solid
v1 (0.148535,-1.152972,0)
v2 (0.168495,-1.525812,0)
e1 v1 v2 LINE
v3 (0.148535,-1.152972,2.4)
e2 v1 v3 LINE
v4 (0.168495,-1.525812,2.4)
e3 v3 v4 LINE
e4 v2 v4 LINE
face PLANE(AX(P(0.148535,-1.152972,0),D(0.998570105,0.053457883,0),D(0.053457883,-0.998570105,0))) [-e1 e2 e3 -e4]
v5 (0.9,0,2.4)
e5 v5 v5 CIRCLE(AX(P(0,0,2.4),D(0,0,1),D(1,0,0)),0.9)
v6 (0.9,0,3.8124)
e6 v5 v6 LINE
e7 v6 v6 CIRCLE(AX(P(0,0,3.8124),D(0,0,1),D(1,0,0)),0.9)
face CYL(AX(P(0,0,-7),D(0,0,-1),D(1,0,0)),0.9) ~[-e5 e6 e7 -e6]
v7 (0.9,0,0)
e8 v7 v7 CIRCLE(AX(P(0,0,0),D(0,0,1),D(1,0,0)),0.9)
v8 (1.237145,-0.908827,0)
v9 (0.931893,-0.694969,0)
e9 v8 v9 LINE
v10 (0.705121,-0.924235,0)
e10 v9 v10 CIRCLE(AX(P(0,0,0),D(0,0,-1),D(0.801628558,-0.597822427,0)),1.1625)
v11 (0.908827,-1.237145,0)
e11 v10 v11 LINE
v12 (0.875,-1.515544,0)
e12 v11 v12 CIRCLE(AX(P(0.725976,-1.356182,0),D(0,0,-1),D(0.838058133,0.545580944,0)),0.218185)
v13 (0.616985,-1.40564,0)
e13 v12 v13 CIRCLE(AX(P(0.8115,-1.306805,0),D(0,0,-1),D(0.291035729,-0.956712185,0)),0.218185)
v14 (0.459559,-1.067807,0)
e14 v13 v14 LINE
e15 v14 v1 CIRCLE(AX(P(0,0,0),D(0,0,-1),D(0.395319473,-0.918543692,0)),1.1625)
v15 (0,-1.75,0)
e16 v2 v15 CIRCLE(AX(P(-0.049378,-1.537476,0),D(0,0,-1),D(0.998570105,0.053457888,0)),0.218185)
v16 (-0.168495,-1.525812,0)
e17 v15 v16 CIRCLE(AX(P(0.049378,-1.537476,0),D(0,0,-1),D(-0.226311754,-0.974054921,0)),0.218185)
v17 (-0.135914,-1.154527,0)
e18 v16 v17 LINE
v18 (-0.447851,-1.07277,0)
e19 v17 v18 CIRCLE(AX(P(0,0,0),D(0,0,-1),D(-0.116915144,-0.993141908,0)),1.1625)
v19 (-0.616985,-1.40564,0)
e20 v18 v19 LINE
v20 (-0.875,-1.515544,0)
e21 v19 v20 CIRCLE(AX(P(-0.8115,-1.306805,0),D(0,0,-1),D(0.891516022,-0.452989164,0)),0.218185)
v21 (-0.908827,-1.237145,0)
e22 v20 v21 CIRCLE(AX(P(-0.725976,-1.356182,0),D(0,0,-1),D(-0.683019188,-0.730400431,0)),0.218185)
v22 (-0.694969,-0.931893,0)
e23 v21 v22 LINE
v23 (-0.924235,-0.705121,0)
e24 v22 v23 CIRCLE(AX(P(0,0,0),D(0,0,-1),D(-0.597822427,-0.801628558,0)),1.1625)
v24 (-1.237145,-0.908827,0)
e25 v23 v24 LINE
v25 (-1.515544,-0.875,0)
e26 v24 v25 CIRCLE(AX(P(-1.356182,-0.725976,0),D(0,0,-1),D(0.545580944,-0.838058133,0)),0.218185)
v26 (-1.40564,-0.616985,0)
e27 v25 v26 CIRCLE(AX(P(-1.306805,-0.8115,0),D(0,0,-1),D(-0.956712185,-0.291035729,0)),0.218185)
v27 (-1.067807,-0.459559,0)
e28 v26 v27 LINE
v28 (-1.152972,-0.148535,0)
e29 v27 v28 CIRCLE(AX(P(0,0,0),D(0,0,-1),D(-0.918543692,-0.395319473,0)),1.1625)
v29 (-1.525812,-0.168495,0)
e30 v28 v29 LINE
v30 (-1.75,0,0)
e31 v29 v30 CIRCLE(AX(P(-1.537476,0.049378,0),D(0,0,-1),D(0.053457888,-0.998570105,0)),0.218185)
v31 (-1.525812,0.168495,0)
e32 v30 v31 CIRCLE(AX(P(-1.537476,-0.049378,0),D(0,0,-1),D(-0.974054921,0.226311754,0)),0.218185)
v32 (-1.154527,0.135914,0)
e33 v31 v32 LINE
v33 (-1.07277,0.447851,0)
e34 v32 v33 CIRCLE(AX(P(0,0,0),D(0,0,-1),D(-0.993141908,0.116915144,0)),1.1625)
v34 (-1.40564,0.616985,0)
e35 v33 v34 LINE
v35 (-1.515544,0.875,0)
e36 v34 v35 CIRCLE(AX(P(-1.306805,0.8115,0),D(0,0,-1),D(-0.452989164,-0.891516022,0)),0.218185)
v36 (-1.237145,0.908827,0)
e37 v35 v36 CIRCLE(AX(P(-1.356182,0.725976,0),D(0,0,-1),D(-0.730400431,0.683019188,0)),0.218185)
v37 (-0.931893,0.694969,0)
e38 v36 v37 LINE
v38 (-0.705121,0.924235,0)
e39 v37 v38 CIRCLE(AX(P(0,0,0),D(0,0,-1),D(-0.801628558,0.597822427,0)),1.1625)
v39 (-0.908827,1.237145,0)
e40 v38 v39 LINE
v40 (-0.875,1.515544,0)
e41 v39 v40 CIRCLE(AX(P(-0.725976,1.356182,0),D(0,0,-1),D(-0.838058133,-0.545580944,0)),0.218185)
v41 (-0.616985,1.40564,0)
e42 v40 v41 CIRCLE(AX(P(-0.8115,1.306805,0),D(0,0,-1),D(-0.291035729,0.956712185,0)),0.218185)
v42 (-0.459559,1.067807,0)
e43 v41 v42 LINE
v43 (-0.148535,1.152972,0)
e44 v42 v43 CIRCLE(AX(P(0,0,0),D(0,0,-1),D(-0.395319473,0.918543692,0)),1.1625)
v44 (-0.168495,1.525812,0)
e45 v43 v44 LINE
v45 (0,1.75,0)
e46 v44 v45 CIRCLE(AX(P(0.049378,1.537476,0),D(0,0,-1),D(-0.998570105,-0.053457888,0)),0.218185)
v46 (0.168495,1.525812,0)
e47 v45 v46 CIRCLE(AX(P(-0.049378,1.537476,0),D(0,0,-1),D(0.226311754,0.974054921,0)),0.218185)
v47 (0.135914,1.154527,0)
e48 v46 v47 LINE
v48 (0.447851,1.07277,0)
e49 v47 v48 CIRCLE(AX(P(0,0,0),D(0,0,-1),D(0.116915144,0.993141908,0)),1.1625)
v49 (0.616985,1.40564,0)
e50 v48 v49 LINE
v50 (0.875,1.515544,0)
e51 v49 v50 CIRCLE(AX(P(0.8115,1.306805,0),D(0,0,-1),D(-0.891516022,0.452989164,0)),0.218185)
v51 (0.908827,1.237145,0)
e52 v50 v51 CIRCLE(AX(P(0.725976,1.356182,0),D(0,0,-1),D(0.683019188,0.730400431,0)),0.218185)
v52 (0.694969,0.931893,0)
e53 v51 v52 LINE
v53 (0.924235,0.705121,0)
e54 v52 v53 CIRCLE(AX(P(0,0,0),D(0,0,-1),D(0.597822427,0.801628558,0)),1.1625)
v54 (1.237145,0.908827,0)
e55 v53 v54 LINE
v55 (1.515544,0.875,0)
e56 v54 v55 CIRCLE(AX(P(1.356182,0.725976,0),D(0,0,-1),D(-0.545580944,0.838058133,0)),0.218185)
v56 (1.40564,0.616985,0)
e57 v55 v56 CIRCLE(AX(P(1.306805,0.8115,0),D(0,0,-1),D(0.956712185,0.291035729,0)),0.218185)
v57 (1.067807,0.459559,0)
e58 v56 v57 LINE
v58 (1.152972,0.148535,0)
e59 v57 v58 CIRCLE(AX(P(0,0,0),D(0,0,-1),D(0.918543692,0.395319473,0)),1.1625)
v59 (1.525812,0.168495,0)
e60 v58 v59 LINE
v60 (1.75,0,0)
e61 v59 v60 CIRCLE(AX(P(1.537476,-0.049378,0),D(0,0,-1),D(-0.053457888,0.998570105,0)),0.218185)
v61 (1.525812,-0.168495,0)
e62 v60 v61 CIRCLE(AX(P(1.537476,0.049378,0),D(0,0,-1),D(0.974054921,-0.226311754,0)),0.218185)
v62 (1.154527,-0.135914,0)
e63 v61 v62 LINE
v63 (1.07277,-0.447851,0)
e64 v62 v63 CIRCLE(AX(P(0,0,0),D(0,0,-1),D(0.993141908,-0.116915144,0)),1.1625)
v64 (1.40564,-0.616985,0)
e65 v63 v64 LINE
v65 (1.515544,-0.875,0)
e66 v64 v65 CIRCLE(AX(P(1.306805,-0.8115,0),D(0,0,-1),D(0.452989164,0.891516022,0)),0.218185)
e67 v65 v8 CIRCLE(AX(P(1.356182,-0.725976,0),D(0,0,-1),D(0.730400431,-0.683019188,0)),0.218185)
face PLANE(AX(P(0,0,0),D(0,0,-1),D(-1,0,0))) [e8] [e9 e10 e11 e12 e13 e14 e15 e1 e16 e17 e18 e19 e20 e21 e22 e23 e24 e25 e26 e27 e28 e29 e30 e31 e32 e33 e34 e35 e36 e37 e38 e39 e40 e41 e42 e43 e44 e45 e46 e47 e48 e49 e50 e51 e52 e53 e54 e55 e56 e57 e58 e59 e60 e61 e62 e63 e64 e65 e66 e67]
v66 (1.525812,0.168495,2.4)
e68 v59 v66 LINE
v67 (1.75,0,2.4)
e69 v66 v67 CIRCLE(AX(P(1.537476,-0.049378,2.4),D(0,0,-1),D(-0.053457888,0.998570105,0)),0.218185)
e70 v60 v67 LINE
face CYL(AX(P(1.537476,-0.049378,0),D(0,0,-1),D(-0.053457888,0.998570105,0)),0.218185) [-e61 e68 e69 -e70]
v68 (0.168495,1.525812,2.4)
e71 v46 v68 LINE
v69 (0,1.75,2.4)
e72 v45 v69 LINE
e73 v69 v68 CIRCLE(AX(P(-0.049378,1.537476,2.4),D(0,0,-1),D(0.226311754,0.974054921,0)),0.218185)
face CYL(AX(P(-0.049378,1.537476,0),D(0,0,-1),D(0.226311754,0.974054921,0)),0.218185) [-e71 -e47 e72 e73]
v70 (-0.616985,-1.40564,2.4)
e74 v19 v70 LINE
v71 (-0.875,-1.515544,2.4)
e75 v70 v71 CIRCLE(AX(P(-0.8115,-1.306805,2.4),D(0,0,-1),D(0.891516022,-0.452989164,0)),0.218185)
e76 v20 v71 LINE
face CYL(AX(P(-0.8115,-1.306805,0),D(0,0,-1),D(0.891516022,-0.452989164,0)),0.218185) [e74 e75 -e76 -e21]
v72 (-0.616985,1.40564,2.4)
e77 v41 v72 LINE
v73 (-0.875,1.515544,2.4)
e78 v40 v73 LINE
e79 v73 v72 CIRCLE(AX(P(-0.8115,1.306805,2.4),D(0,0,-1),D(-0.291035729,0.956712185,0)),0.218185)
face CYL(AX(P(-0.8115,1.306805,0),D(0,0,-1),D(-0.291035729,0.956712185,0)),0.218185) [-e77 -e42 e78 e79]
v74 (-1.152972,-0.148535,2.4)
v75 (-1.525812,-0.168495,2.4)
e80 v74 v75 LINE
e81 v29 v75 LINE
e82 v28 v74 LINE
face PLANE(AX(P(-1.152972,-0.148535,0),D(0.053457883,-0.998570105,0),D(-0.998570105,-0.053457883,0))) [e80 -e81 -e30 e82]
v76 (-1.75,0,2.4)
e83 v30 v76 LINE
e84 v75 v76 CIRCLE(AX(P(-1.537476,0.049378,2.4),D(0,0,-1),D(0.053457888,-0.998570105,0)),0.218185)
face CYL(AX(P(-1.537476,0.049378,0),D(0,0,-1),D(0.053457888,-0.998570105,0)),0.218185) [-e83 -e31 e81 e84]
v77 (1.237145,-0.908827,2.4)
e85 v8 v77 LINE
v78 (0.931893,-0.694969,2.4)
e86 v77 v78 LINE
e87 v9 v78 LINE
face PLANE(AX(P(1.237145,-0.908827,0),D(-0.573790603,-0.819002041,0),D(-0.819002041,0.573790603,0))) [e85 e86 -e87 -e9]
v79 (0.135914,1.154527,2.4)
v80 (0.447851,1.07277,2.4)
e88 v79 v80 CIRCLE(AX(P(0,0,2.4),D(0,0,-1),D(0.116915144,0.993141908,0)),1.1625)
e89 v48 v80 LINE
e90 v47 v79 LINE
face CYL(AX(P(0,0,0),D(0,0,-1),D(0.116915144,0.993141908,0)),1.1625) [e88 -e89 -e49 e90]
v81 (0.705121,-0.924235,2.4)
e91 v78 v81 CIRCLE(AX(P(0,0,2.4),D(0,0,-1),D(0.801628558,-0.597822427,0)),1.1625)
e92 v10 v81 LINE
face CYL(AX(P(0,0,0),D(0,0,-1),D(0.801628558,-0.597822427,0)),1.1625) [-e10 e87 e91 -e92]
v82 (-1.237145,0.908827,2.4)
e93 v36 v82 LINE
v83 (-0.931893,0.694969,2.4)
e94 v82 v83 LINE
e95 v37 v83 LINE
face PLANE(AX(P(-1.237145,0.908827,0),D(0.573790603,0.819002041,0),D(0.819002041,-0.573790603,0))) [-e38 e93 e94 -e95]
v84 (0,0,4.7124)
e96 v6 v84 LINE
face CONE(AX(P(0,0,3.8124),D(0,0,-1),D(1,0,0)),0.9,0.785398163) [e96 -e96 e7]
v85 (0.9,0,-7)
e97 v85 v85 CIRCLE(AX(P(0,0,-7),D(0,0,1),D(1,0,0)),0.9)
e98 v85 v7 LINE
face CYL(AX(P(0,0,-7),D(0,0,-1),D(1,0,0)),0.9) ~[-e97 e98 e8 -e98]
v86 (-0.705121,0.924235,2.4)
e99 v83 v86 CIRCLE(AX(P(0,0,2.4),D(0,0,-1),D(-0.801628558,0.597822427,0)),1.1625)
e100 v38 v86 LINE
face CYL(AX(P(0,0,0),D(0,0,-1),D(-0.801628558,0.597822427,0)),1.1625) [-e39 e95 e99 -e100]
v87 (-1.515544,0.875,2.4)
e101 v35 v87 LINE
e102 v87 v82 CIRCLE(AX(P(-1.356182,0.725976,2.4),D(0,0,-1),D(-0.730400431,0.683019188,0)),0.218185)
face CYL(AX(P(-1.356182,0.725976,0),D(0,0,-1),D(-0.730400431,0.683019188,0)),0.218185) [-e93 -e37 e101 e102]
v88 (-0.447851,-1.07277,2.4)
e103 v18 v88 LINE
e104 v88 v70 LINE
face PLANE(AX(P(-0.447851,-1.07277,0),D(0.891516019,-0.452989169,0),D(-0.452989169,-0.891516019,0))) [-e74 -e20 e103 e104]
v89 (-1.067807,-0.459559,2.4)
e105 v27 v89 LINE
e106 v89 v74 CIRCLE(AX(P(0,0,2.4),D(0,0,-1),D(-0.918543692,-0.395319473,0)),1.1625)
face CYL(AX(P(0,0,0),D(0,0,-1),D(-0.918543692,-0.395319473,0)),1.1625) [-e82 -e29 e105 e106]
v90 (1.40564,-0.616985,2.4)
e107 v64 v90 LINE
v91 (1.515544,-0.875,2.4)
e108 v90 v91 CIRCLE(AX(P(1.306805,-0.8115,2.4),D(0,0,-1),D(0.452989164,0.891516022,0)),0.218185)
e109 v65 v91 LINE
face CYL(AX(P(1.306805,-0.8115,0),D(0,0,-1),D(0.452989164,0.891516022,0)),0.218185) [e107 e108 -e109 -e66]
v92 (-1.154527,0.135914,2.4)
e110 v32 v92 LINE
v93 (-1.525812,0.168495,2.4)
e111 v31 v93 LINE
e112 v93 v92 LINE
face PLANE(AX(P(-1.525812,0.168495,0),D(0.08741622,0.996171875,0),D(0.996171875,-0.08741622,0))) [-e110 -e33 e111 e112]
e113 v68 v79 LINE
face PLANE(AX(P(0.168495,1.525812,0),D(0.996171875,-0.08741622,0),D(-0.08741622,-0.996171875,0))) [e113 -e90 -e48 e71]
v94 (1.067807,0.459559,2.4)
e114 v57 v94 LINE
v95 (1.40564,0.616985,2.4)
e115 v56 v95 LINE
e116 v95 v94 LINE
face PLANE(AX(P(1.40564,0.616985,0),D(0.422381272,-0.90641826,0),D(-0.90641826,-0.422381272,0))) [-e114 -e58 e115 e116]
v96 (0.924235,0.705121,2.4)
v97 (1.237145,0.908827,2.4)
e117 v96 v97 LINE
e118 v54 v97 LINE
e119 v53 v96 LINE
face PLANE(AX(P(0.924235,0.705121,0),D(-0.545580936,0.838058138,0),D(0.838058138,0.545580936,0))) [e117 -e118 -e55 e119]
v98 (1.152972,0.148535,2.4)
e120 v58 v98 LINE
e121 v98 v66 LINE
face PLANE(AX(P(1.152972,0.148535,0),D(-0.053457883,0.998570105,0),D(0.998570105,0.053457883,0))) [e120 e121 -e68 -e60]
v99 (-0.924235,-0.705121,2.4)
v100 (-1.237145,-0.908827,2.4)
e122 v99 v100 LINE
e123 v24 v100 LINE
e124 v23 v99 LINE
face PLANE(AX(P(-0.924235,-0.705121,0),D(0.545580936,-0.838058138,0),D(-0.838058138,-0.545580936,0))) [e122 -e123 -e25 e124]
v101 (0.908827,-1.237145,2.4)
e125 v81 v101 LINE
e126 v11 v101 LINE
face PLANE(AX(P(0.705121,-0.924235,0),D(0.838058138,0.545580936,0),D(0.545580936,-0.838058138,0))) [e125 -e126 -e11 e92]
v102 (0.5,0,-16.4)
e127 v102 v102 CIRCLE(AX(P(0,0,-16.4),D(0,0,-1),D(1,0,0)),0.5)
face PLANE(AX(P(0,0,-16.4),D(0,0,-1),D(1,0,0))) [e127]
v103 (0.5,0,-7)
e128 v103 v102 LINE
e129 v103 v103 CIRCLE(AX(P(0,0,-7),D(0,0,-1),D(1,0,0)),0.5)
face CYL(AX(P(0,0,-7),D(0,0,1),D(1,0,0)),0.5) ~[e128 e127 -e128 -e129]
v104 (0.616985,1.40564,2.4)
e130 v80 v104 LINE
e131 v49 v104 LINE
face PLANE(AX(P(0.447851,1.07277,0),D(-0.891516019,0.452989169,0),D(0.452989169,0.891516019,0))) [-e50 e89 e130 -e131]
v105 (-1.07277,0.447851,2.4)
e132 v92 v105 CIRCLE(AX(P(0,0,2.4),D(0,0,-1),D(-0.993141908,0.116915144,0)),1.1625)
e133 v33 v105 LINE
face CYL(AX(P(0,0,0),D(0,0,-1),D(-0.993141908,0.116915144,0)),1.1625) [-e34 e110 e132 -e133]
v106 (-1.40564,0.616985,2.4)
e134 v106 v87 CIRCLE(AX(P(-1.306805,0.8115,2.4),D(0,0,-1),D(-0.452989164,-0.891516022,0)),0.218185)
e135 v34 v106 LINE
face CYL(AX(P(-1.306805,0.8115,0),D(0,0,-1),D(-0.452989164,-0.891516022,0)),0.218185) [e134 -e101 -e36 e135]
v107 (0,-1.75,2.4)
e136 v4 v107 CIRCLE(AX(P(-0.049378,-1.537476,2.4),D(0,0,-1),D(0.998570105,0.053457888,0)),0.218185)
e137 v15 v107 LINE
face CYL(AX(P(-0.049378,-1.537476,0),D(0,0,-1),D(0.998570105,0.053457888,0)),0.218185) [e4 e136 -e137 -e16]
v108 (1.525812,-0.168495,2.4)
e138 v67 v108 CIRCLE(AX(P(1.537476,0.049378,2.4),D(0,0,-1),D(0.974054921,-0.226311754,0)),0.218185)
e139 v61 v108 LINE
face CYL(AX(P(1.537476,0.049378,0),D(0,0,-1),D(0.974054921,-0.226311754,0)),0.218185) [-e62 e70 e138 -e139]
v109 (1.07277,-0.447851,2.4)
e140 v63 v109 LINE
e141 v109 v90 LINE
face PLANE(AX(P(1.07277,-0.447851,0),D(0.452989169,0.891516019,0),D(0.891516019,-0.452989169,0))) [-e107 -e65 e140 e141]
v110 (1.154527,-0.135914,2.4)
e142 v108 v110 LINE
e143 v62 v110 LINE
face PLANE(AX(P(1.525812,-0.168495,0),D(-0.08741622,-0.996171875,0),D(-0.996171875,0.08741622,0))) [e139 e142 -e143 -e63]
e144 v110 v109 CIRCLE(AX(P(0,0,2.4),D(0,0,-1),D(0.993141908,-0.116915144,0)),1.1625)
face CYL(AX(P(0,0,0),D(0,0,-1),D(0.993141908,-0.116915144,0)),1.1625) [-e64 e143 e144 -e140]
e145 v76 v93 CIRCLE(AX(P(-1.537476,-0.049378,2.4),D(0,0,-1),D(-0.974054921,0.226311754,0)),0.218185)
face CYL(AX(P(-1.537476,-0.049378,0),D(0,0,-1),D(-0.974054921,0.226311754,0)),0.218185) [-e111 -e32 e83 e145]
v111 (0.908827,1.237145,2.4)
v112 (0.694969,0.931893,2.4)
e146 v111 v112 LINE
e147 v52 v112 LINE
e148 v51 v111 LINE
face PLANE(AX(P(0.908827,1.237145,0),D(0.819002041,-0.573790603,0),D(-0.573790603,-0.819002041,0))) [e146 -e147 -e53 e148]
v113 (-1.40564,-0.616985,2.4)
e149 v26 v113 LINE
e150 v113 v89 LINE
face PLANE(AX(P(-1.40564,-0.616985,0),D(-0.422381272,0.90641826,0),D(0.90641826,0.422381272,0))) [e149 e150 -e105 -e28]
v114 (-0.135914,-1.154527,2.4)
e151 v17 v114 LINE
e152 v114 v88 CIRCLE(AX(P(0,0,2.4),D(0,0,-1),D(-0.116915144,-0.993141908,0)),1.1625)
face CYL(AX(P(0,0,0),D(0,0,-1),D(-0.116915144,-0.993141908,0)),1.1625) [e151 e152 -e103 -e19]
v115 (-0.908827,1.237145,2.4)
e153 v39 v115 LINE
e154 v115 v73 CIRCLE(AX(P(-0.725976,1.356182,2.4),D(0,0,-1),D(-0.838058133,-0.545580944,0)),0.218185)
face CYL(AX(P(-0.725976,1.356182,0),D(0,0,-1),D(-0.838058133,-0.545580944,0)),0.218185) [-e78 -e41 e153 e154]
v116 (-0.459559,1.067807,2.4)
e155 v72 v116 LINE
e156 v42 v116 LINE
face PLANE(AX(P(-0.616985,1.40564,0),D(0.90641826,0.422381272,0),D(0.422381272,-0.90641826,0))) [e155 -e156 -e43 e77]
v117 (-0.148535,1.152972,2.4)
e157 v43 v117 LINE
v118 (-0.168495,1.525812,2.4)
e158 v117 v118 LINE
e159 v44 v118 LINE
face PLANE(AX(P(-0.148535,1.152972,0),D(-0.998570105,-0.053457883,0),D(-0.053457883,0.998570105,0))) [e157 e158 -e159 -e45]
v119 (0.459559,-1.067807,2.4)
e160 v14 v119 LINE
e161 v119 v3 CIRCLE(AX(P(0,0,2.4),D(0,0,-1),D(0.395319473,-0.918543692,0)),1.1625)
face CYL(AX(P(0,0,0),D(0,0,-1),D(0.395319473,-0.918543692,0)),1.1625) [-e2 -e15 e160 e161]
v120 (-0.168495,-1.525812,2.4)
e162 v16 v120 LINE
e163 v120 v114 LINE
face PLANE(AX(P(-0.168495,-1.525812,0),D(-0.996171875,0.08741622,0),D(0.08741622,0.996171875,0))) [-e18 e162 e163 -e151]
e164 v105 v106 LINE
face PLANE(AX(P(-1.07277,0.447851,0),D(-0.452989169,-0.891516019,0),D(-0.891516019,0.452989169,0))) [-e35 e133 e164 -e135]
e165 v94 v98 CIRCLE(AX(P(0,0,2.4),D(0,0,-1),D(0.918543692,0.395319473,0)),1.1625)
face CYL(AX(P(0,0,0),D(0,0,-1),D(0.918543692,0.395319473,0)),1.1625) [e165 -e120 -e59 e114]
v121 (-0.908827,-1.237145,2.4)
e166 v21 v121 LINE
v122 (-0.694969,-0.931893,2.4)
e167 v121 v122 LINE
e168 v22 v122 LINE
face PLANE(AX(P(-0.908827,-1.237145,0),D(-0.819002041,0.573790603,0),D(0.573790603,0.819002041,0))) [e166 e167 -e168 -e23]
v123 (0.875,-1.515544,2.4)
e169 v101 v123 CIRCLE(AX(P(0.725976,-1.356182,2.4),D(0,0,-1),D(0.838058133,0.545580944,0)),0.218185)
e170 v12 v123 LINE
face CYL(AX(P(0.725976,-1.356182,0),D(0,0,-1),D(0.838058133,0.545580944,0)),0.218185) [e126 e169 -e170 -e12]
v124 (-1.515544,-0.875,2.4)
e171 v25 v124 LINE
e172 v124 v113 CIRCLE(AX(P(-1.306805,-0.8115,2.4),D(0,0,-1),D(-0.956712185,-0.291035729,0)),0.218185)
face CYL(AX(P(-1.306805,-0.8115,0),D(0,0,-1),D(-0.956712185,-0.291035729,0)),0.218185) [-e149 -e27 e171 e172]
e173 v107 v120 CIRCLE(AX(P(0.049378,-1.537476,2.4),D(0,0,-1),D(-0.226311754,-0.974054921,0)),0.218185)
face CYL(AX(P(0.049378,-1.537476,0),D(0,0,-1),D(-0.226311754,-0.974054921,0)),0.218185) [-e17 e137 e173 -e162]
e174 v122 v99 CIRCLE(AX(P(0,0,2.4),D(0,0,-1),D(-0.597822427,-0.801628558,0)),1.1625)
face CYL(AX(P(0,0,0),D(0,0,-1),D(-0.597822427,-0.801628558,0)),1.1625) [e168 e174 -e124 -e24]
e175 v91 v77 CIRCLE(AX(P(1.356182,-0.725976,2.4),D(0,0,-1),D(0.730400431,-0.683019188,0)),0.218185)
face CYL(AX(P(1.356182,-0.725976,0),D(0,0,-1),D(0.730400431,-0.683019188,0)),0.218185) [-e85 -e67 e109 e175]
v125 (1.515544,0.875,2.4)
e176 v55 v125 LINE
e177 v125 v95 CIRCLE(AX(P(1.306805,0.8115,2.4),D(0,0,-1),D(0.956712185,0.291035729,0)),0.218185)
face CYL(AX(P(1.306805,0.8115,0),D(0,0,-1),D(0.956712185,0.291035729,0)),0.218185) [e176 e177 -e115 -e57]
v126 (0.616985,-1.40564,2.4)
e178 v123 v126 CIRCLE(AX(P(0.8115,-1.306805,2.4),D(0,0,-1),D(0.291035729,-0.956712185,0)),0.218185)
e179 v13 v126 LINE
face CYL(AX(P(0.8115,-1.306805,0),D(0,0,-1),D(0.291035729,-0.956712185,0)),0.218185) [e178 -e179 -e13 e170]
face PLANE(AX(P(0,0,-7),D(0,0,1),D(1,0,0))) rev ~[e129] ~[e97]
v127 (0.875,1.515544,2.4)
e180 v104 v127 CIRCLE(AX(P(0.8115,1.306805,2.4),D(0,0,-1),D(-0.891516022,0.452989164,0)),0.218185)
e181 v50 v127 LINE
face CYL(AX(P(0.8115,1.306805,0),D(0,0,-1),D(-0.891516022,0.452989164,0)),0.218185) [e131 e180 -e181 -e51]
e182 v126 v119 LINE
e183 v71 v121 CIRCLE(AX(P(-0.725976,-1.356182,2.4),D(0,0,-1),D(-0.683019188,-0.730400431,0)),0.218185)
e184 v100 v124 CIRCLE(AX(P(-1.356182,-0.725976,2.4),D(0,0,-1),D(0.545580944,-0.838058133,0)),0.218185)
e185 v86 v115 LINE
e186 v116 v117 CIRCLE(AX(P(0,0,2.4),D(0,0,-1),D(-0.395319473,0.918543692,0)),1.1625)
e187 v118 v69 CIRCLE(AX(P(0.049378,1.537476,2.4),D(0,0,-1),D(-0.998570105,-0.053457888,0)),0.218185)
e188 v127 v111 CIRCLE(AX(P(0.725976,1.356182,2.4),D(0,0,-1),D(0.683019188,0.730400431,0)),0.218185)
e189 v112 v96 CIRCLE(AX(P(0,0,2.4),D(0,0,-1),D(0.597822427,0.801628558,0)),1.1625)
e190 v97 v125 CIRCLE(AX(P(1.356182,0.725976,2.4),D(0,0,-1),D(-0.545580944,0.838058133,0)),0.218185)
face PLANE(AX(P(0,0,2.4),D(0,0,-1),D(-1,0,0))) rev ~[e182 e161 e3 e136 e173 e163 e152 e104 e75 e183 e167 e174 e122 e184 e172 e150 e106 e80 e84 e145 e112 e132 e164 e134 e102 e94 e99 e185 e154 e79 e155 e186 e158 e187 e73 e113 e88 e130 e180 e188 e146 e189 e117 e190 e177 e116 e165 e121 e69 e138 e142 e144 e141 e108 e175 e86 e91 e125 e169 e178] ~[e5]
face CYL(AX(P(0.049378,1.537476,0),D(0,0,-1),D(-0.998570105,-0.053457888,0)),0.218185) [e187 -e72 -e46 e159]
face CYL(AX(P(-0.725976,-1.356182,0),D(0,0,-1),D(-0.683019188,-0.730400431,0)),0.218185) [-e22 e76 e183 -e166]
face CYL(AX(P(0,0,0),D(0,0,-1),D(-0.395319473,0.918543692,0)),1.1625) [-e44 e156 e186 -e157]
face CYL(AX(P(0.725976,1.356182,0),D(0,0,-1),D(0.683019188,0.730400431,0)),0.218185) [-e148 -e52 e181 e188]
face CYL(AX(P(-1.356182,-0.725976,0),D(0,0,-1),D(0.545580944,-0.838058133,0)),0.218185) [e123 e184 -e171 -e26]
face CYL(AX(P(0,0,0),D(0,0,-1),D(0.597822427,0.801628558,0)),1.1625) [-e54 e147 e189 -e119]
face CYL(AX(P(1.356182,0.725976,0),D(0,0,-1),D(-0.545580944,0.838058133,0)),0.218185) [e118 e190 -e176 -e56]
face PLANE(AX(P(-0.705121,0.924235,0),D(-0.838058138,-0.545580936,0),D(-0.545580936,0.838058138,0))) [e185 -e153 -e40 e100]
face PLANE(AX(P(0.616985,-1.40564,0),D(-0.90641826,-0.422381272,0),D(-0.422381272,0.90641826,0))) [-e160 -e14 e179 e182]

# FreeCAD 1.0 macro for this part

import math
import FreeCAD as App
import Part
import Sketcher
from FreeCAD import Vector
Q = App.Units.Quantity


def edges_at(feature, points):
    """Names of the edges that pass closest to the given points."""
    edges = feature.Shape.Edges
    near = lambda p: min(range(len(edges)), key=lambda i: edges[i].distToShape(Part.Vertex(*p))[0])
    return sorted({f"Edge{near(p) + 1}" for p in points})

doc = App.newDocument("Part")
body = doc.addObject("PartDesign::Body", "Body")

sketch1 = doc.addObject("Sketcher::SketchObject", "Sketch")
body.addObject(sketch1)
sketch1.AttachmentSupport = (doc.XY_Plane, [""])
sketch1.MapMode = "FlatFace"
sketch1.addGeometry(Part.LineSegment(Vector(-0.17, 1.53, 0), Vector(-0.15, 1.15, 0)), False)
sketch1.addGeometry(Part.ArcOfCircle(Part.Circle(Vector(0, 0, 0), Vector(0, 0, 1), 1.16), math.radians(97.34), math.radians(113.29)), False)
sketch1.addGeometry(Part.LineSegment(Vector(-0.46, 1.07, 0), Vector(-0.62, 1.41, 0)), False)
sketch1.addGeometry(Part.ArcOfCircle(Part.Circle(Vector(-0.81, 1.31, 0), Vector(0, 0, 1), 0.22), math.radians(27), math.radians(107)), False)
sketch1.addGeometry(Part.ArcOfCircle(Part.Circle(Vector(-0.73, 1.36, 0), Vector(0, 0, 1), 0.22), math.radians(133), math.radians(213)), False)
sketch1.addGeometry(Part.LineSegment(Vector(-0.91, 1.24, 0), Vector(-0.71, 0.92, 0)), False)
sketch1.addGeometry(Part.ArcOfCircle(Part.Circle(Vector(0, 0, 0), Vector(0, 0, 1), 1.16), math.radians(127.34), math.radians(143.29)), False)
sketch1.addGeometry(Part.LineSegment(Vector(-0.93, 0.69, 0), Vector(-1.24, 0.91, 0)), False)
sketch1.addGeometry(Part.ArcOfCircle(Part.Circle(Vector(-1.36, 0.73, 0), Vector(0, 0, 1), 0.22), math.radians(57), math.radians(137)), False)
sketch1.addGeometry(Part.ArcOfCircle(Part.Circle(Vector(-1.31, 0.81, 0), Vector(0, 0, 1), 0.22), math.radians(163), math.radians(243)), False)
sketch1.addGeometry(Part.LineSegment(Vector(-1.41, 0.62, 0), Vector(-1.07, 0.45, 0)), False)
sketch1.addGeometry(Part.ArcOfCircle(Part.Circle(Vector(0, 0, 0), Vector(0, 0, 1), 1.16), math.radians(157.34), math.radians(173.29)), False)
sketch1.addGeometry(Part.LineSegment(Vector(-1.15, 0.14, 0), Vector(-1.53, 0.17, 0)), False)
sketch1.addGeometry(Part.ArcOfCircle(Part.Circle(Vector(-1.54, -0.05, 0), Vector(0, 0, 1), 0.22), math.radians(87), math.radians(167)), False)
sketch1.addGeometry(Part.ArcOfCircle(Part.Circle(Vector(-1.54, 0.05, 0), Vector(0, 0, 1), 0.22), math.radians(-167), math.radians(-87)), False)
sketch1.addGeometry(Part.LineSegment(Vector(-1.53, -0.17, 0), Vector(-1.15, -0.15, 0)), False)
sketch1.addGeometry(Part.ArcOfCircle(Part.Circle(Vector(0, 0, 0), Vector(0, 0, 1), 1.16), math.radians(-172.66), math.radians(-156.71)), False)
sketch1.addGeometry(Part.LineSegment(Vector(-1.07, -0.46, 0), Vector(-1.41, -0.62, 0)), False)
sketch1.addGeometry(Part.ArcOfCircle(Part.Circle(Vector(-1.31, -0.81, 0), Vector(0, 0, 1), 0.22), math.radians(117), math.radians(197)), False)
sketch1.addGeometry(Part.ArcOfCircle(Part.Circle(Vector(-1.36, -0.73, 0), Vector(0, 0, 1), 0.22), math.radians(-137), math.radians(-57)), False)
sketch1.addGeometry(Part.LineSegment(Vector(-1.24, -0.91, 0), Vector(-0.92, -0.71, 0)), False)
sketch1.addGeometry(Part.ArcOfCircle(Part.Circle(Vector(0, 0, 0), Vector(0, 0, 1), 1.16), math.radians(-142.66), math.radians(-126.71)), False)
sketch1.addGeometry(Part.LineSegment(Vector(-0.69, -0.93, 0), Vector(-0.91, -1.24, 0)), False)
sketch1.addGeometry(Part.ArcOfCircle(Part.Circle(Vector(-0.73, -1.36, 0), Vector(0, 0, 1), 0.22), math.radians(147), math.radians(227)), False)
sketch1.addGeometry(Part.ArcOfCircle(Part.Circle(Vector(-0.81, -1.31, 0), Vector(0, 0, 1), 0.22), math.radians(-107), math.radians(-27)), False)
sketch1.addGeometry(Part.LineSegment(Vector(-0.62, -1.41, 0), Vector(-0.45, -1.07, 0)), False)
sketch1.addGeometry(Part.ArcOfCircle(Part.Circle(Vector(0, 0, 0), Vector(0, 0, 1), 1.16), math.radians(-112.66), math.radians(-96.71)), False)
sketch1.addGeometry(Part.LineSegment(Vector(-0.14, -1.15, 0), Vector(-0.17, -1.53, 0)), False)
sketch1.addGeometry(Part.ArcOfCircle(Part.Circle(Vector(0.05, -1.54, 0), Vector(0, 0, 1), 0.22), math.radians(177), math.radians(257)), False)
sketch1.addGeometry(Part.ArcOfCircle(Part.Circle(Vector(-0.05, -1.54, 0), Vector(0, 0, 1), 0.22), math.radians(-77), math.radians(3)), False)
sketch1.addGeometry(Part.LineSegment(Vector(0.17, -1.53, 0), Vector(0.15, -1.15, 0)), False)
sketch1.addGeometry(Part.ArcOfCircle(Part.Circle(Vector(0, 0, 0), Vector(0, 0, 1), 1.16), math.radians(-82.66), math.radians(-66.71)), False)
sketch1.addGeometry(Part.LineSegment(Vector(0.46, -1.07, 0), Vector(0.62, -1.41, 0)), False)
sketch1.addGeometry(Part.ArcOfCircle(Part.Circle(Vector(0.81, -1.31, 0), Vector(0, 0, 1), 0.22), math.radians(-153), math.radians(-73)), False)
sketch1.addGeometry(Part.ArcOfCircle(Part.Circle(Vector(0.73, -1.36, 0), Vector(0, 0, 1), 0.22), math.radians(-47), math.radians(33)), False)
sketch1.addGeometry(Part.LineSegment(Vector(0.91, -1.24, 0), Vector(0.71, -0.92, 0)), False)
sketch1.addGeometry(Part.ArcOfCircle(Part.Circle(Vector(0, 0, 0), Vector(0, 0, 1), 1.16), math.radians(-52.66), math.radians(-36.71)), False)
sketch1.addGeometry(Part.LineSegment(Vector(0.93, -0.69, 0), Vector(1.24, -0.91, 0)), False)
sketch1.addGeometry(Part.ArcOfCircle(Part.Circle(Vector(1.36, -0.73, 0), Vector(0, 0, 1), 0.22), math.radians(-123), math.radians(-43)), False)
sketch1.addGeometry(Part.ArcOfCircle(Part.Circle(Vector(1.31, -0.81, 0), Vector(0, 0, 1), 0.22), math.radians(-17), math.radians(63)), False)
sketch1.addGeometry(Part.LineSegment(Vector(1.41, -0.62, 0), Vector(1.07, -0.45, 0)), False)
sketch1.addGeometry(Part.ArcOfCircle(Part.Circle(Vector(0, 0, 0), Vector(0, 0, 1), 1.16), math.radians(-22.66), math.radians(-6.71)), False)
sketch1.addGeometry(Part.LineSegment(Vector(1.15, -0.14, 0), Vector(1.53, -0.17, 0)), False)
sketch1.addGeometry(Part.ArcOfCircle(Part.Circle(Vector(1.54, 0.05, 0), Vector(0, 0, 1), 0.22), math.radians(-93), math.radians(-13)), False)
sketch1.addGeometry(Part.ArcOfCircle(Part.Circle(Vector(1.54, -0.05, 0), Vector(0, 0, 1), 0.22), math.radians(13), math.radians(93)), False)
sketch1.addGeometry(Part.LineSegment(Vector(1.53, 0.17, 0), Vector(1.15, 0.15, 0)), False)
sketch1.addGeometry(Part.ArcOfCircle(Part.Circle(Vector(0, 0, 0), Vector(0, 0, 1), 1.16), math.radians(7.34), math.radians(23.29)), False)
sketch1.addGeometry(Part.LineSegment(Vector(1.07, 0.46, 0), Vector(1.41, 0.62, 0)), False)
sketch1.addGeometry(Part.ArcOfCircle(Part.Circle(Vector(1.31, 0.81, 0), Vector(0, 0, 1), 0.22), math.radians(-63), math.radians(17)), False)
sketch1.addGeometry(Part.ArcOfCircle(Part.Circle(Vector(1.36, 0.73, 0), Vector(0, 0, 1), 0.22), math.radians(43), math.radians(123)), False)
sketch1.addGeometry(Part.LineSegment(Vector(1.24, 0.91, 0), Vector(0.92, 0.71, 0)), False)
sketch1.addGeometry(Part.ArcOfCircle(Part.Circle(Vector(0, 0, 0), Vector(0, 0, 1), 1.16), math.radians(37.34), math.radians(53.29)), False)
sketch1.addGeometry(Part.LineSegment(Vector(0.69, 0.93, 0), Vector(0.91, 1.24, 0)), False)
sketch1.addGeometry(Part.ArcOfCircle(Part.Circle(Vector(0.73, 1.36, 0), Vector(0, 0, 1), 0.22), math.radians(-33), math.radians(47)), False)
sketch1.addGeometry(Part.ArcOfCircle(Part.Circle(Vector(0.81, 1.31, 0), Vector(0, 0, 1), 0.22), math.radians(73), math.radians(153)), False)
sketch1.addGeometry(Part.LineSegment(Vector(0.62, 1.41, 0), Vector(0.45, 1.07, 0)), False)
sketch1.addGeometry(Part.ArcOfCircle(Part.Circle(Vector(0, 0, 0), Vector(0, 0, 1), 1.16), math.radians(67.34), math.radians(83.29)), False)
sketch1.addGeometry(Part.LineSegment(Vector(0.14, 1.15, 0), Vector(0.17, 1.53, 0)), False)
sketch1.addGeometry(Part.ArcOfCircle(Part.Circle(Vector(-0.05, 1.54, 0), Vector(0, 0, 1), 0.22), math.radians(-3), math.radians(77)), False)
sketch1.addGeometry(Part.ArcOfCircle(Part.Circle(Vector(0.05, 1.54, 0), Vector(0, 0, 1), 0.22), math.radians(103), math.radians(183)), False)
sketch1.addGeometry(Part.Circle(Vector(0, 0, 0), Vector(0, 0, 1), 0.9), False)
sketch1.addConstraint(Sketcher.Constraint("Coincident", 0, 2, 1, 1))
sketch1.addConstraint(Sketcher.Constraint("Coincident", 1, 2, 2, 1))
sketch1.addConstraint(Sketcher.Constraint("Coincident", 2, 2, 3, 1))
sketch1.addConstraint(Sketcher.Constraint("Coincident", 3, 2, 4, 1))
sketch1.addConstraint(Sketcher.Constraint("Tangent", 4, 2, 5, 1))
sketch1.addConstraint(Sketcher.Constraint("Coincident", 5, 2, 6, 1))
sketch1.addConstraint(Sketcher.Constraint("Coincident", 6, 2, 7, 1))
sketch1.addConstraint(Sketcher.Constraint("Coincident", 7, 2, 8, 1))
sketch1.addConstraint(Sketcher.Constraint("Coincident", 8, 2, 9, 1))
sketch1.addConstraint(Sketcher.Constraint("Tangent", 9, 2, 10, 1))
sketch1.addConstraint(Sketcher.Constraint("Coincident", 10, 2, 11, 1))
sketch1.addConstraint(Sketcher.Constraint("Coincident", 11, 2, 12, 1))
sketch1.addConstraint(Sketcher.Constraint("Coincident", 12, 2, 13, 1))
sketch1.addConstraint(Sketcher.Constraint("Coincident", 13, 2, 14, 1))
sketch1.addConstraint(Sketcher.Constraint("Tangent", 14, 2, 15, 1))
sketch1.addConstraint(Sketcher.Constraint("Coincident", 15, 2, 16, 1))
sketch1.addConstraint(Sketcher.Constraint("Coincident", 16, 2, 17, 1))
sketch1.addConstraint(Sketcher.Constraint("Coincident", 17, 2, 18, 1))
sketch1.addConstraint(Sketcher.Constraint("Coincident", 18, 2, 19, 1))
sketch1.addConstraint(Sketcher.Constraint("Tangent", 19, 2, 20, 1))
sketch1.addConstraint(Sketcher.Constraint("Coincident", 20, 2, 21, 1))
sketch1.addConstraint(Sketcher.Constraint("Coincident", 21, 2, 22, 1))
sketch1.addConstraint(Sketcher.Constraint("Coincident", 22, 2, 23, 1))
sketch1.addConstraint(Sketcher.Constraint("Coincident", 23, 2, 24, 1))
sketch1.addConstraint(Sketcher.Constraint("Tangent", 24, 2, 25, 1))
sketch1.addConstraint(Sketcher.Constraint("Coincident", 25, 2, 26, 1))
sketch1.addConstraint(Sketcher.Constraint("Coincident", 26, 2, 27, 1))
sketch1.addConstraint(Sketcher.Constraint("Coincident", 27, 2, 28, 1))
sketch1.addConstraint(Sketcher.Constraint("Coincident", 28, 2, 29, 1))
sketch1.addConstraint(Sketcher.Constraint("Tangent", 29, 2, 30, 1))
sketch1.addConstraint(Sketcher.Constraint("Coincident", 30, 2, 31, 1))
sketch1.addConstraint(Sketcher.Constraint("Coincident", 31, 2, 32, 1))
sketch1.addConstraint(Sketcher.Constraint("Coincident", 32, 2, 33, 1))
sketch1.addConstraint(Sketcher.Constraint("Coincident", 33, 2, 34, 1))
sketch1.addConstraint(Sketcher.Constraint("Tangent", 34, 2, 35, 1))
sketch1.addConstraint(Sketcher.Constraint("Coincident", 35, 2, 36, 1))
sketch1.addConstraint(Sketcher.Constraint("Coincident", 36, 2, 37, 1))
sketch1.addConstraint(Sketcher.Constraint("Coincident", 37, 2, 38, 1))
sketch1.addConstraint(Sketcher.Constraint("Coincident", 38, 2, 39, 1))
sketch1.addConstraint(Sketcher.Constraint("Tangent", 39, 2, 40, 1))
sketch1.addConstraint(Sketcher.Constraint("Coincident", 40, 2, 41, 1))
sketch1.addConstraint(Sketcher.Constraint("Coincident", 41, 2, 42, 1))
sketch1.addConstraint(Sketcher.Constraint("Coincident", 42, 2, 43, 1))
sketch1.addConstraint(Sketcher.Constraint("Coincident", 43, 2, 44, 1))
sketch1.addConstraint(Sketcher.Constraint("Tangent", 44, 2, 45, 1))
sketch1.addConstraint(Sketcher.Constraint("Coincident", 45, 2, 46, 1))
sketch1.addConstraint(Sketcher.Constraint("Coincident", 46, 2, 47, 1))
sketch1.addConstraint(Sketcher.Constraint("Coincident", 47, 2, 48, 1))
sketch1.addConstraint(Sketcher.Constraint("Coincident", 48, 2, 49, 1))
sketch1.addConstraint(Sketcher.Constraint("Tangent", 49, 2, 50, 1))
sketch1.addConstraint(Sketcher.Constraint("Coincident", 50, 2, 51, 1))
sketch1.addConstraint(Sketcher.Constraint("Coincident", 51, 2, 52, 1))
sketch1.addConstraint(Sketcher.Constraint("Coincident", 52, 2, 53, 1))
sketch1.addConstraint(Sketcher.Constraint("Coincident", 53, 2, 54, 1))
sketch1.addConstraint(Sketcher.Constraint("Tangent", 54, 2, 55, 1))
sketch1.addConstraint(Sketcher.Constraint("Coincident", 55, 2, 56, 1))
sketch1.addConstraint(Sketcher.Constraint("Coincident", 56, 2, 57, 1))
sketch1.addConstraint(Sketcher.Constraint("Coincident", 57, 2, 58, 1))
sketch1.addConstraint(Sketcher.Constraint("Coincident", 58, 2, 59, 1))
sketch1.addConstraint(Sketcher.Constraint("Tangent", 59, 2, 0, 1))
sketch1.addConstraint(Sketcher.Constraint("Coincident", 1, 3, -1, 1))
sketch1.addConstraint(Sketcher.Constraint("Coincident", 6, 3, -1, 1))
sketch1.addConstraint(Sketcher.Constraint("Coincident", 11, 3, -1, 1))
sketch1.addConstraint(Sketcher.Constraint("Coincident", 16, 3, -1, 1))
sketch1.addConstraint(Sketcher.Constraint("Coincident", 21, 3, -1, 1))
sketch1.addConstraint(Sketcher.Constraint("Coincident", 26, 3, -1, 1))
sketch1.addConstraint(Sketcher.Constraint("Coincident", 31, 3, -1, 1))
sketch1.addConstraint(Sketcher.Constraint("Coincident", 36, 3, -1, 1))
sketch1.addConstraint(Sketcher.Constraint("Coincident", 41, 3, -1, 1))
sketch1.addConstraint(Sketcher.Constraint("Coincident", 46, 3, -1, 1))
sketch1.addConstraint(Sketcher.Constraint("Coincident", 51, 3, -1, 1))
sketch1.addConstraint(Sketcher.Constraint("Coincident", 56, 3, -1, 1))
sketch1.addConstraint(Sketcher.Constraint("Coincident", 60, 3, -1, 1))
sketch1.addConstraint(Sketcher.Constraint("Equal", 3, 4))
sketch1.addConstraint(Sketcher.Constraint("Equal", 1, 6))
sketch1.addConstraint(Sketcher.Constraint("Equal", 4, 8))
sketch1.addConstraint(Sketcher.Constraint("Equal", 8, 9))
sketch1.addConstraint(Sketcher.Constraint("Equal", 6, 11))
sketch1.addConstraint(Sketcher.Constraint("Equal", 9, 13))
sketch1.addConstraint(Sketcher.Constraint("Equal", 13, 14))
sketch1.addConstraint(Sketcher.Constraint("Equal", 11, 16))
sketch1.addConstraint(Sketcher.Constraint("Equal", 14, 18))
sketch1.addConstraint(Sketcher.Constraint("Equal", 18, 19))
sketch1.addConstraint(Sketcher.Constraint("Equal", 16, 21))
sketch1.addConstraint(Sketcher.Constraint("Equal", 19, 23))
sketch1.addConstraint(Sketcher.Constraint("Equal", 23, 24))
sketch1.addConstraint(Sketcher.Constraint("Equal", 21, 26))
sketch1.addConstraint(Sketcher.Constraint("Equal", 24, 28))
sketch1.addConstraint(Sketcher.Constraint("Equal", 28, 29))
sketch1.addConstraint(Sketcher.Constraint("Equal", 26, 31))
sketch1.addConstraint(Sketcher.Constraint("Equal", 29, 33))
sketch1.addConstraint(Sketcher.Constraint("Equal", 33, 34))
sketch1.addConstraint(Sketcher.Constraint("Equal", 31, 36))
sketch1.addConstraint(Sketcher.Constraint("Equal", 34, 38))
sketch1.addConstraint(Sketcher.Constraint("Equal", 38, 39))
sketch1.addConstraint(Sketcher.Constraint("Equal", 36, 41))
sketch1.addConstraint(Sketcher.Constraint("Equal", 39, 43))
sketch1.addConstraint(Sketcher.Constraint("Equal", 43, 44))
sketch1.addConstraint(Sketcher.Constraint("Equal", 41, 46))
sketch1.addConstraint(Sketcher.Constraint("Equal", 44, 48))
sketch1.addConstraint(Sketcher.Constraint("Equal", 48, 49))
sketch1.addConstraint(Sketcher.Constraint("Equal", 46, 51))
sketch1.addConstraint(Sketcher.Constraint("Equal", 49, 53))
sketch1.addConstraint(Sketcher.Constraint("Equal", 53, 54))
sketch1.addConstraint(Sketcher.Constraint("Equal", 51, 56))
sketch1.addConstraint(Sketcher.Constraint("Equal", 54, 58))
sketch1.addConstraint(Sketcher.Constraint("Equal", 58, 59))
sketch1.addConstraint(Sketcher.Constraint("Symmetric", 3, 3, 33, 3, -1, 1))
sketch1.addConstraint(Sketcher.Constraint("Symmetric", 4, 3, 34, 3, -1, 1))
sketch1.addConstraint(Sketcher.Constraint("Symmetric", 8, 3, 38, 3, -1, 1))
sketch1.addConstraint(Sketcher.Constraint("Symmetric", 9, 3, 39, 3, -1, 1))
sketch1.addConstraint(Sketcher.Constraint("Symmetric", 13, 3, 43, 3, -1, 1))
sketch1.addConstraint(Sketcher.Constraint("Symmetric", 14, 3, 44, 3, -1, 1))
sketch1.addConstraint(Sketcher.Constraint("Symmetric", 18, 3, 48, 3, -1, 1))
sketch1.addConstraint(Sketcher.Constraint("Symmetric", 19, 3, 49, 3, -1, 1))
sketch1.addConstraint(Sketcher.Constraint("Symmetric", 23, 3, 53, 3, -1, 1))
sketch1.addConstraint(Sketcher.Constraint("Symmetric", 24, 3, 54, 3, -1, 1))
sketch1.addConstraint(Sketcher.Constraint("Symmetric", 28, 3, 58, 3, -1, 1))
sketch1.addConstraint(Sketcher.Constraint("Symmetric", 29, 3, 59, 3, -1, 1))
sketch1.addConstraint(Sketcher.Constraint("Symmetric", 28, 3, 29, 3, -2))
sketch1.addConstraint(Sketcher.Constraint("Symmetric", 24, 3, 33, 3, -2))
sketch1.addConstraint(Sketcher.Constraint("Symmetric", 23, 3, 34, 3, -2))
sketch1.addConstraint(Sketcher.Constraint("Symmetric", 19, 3, 38, 3, -2))
sketch1.addConstraint(Sketcher.Constraint("Symmetric", 18, 3, 39, 3, -2))
sketch1.addConstraint(Sketcher.Constraint("Symmetric", 14, 3, 43, 3, -2))
sketch1.addConstraint(Sketcher.Constraint("Perpendicular", 0, 15))
sketch1.addConstraint(Sketcher.Constraint("Perpendicular", 2, 17))
sketch1.addConstraint(Sketcher.Constraint("Perpendicular", 5, 20))
sketch1.addConstraint(Sketcher.Constraint("Perpendicular", 7, 22))
sketch1.addConstraint(Sketcher.Constraint("Perpendicular", 10, 25))
sketch1.addConstraint(Sketcher.Constraint("Perpendicular", 12, 27))
sketch1.addConstraint(Sketcher.Constraint("Perpendicular", 15, 30))
sketch1.addConstraint(Sketcher.Constraint("Perpendicular", 17, 32))
sketch1.addConstraint(Sketcher.Constraint("Perpendicular", 20, 35))
sketch1.addConstraint(Sketcher.Constraint("Perpendicular", 22, 37))
sketch1.addConstraint(Sketcher.Constraint("Perpendicular", 25, 40))
sketch1.addConstraint(Sketcher.Constraint("Perpendicular", 27, 42))
sketch1.addConstraint(Sketcher.Constraint("Perpendicular", 30, 45))
sketch1.addConstraint(Sketcher.Constraint("Perpendicular", 32, 47))
sketch1.addConstraint(Sketcher.Constraint("Perpendicular", 35, 50))
sketch1.addConstraint(Sketcher.Constraint("Perpendicular", 37, 52))
sketch1.addConstraint(Sketcher.Constraint("Perpendicular", 40, 55))
sketch1.addConstraint(Sketcher.Constraint("Perpendicular", 42, 57))
sketch1.addConstraint(Sketcher.Constraint("Horizontal", 27, 2, 29, 2))
sketch1.addConstraint(Sketcher.Constraint("Horizontal", 24, 2, 32, 2))
sketch1.addConstraint(Sketcher.Constraint("Horizontal", 22, 2, 34, 2))
sketch1.addConstraint(Sketcher.Constraint("Horizontal", 19, 2, 37, 2))
sketch1.addConstraint(Sketcher.Constraint("Horizontal", 17, 2, 39, 2))
sketch1.addConstraint(Sketcher.Constraint("Horizontal", 14, 2, 42, 2))
sketch1.addConstraint(Sketcher.Constraint("Horizontal", 12, 2, 44, 2))
sketch1.addConstraint(Sketcher.Constraint("Horizontal", 9, 2, 47, 2))
sketch1.addConstraint(Sketcher.Constraint("Horizontal", 7, 2, 49, 2))
sketch1.addConstraint(Sketcher.Constraint("Horizontal", 4, 2, 52, 2))
sketch1.addConstraint(Sketcher.Constraint("Horizontal", 2, 2, 54, 2))
sketch1.addConstraint(Sketcher.Constraint("Horizontal", 57, 2, 59, 2))
sketch1.addConstraint(Sketcher.Constraint("Equal", 0, 5))
sketch1.addConstraint(Sketcher.Constraint("Equal", 2, 7))
sketch1.addConstraint(Sketcher.Constraint("Equal", 5, 10))
sketch1.addConstraint(Sketcher.Constraint("Equal", 7, 12))
sketch1.addConstraint(Sketcher.Constraint("Equal", 10, 15))
sketch1.addConstraint(Sketcher.Constraint("Equal", 12, 17))
sketch1.addConstraint(Sketcher.Constraint("Equal", 15, 20))
sketch1.addConstraint(Sketcher.Constraint("Diameter", 60, Q("1.8 mm")))
sketch1.addConstraint(Sketcher.Constraint("Radius", 1, Q("1.1625 mm")))
sketch1.addConstraint(Sketcher.Constraint("DistanceX", 13, 2, -1, 1, Q("1.75 mm")))
sketch1.addConstraint(Sketcher.Constraint("DistanceY", 28, 2, -1, 1, Q("1.75 mm")))
sketch1.addConstraint(Sketcher.Constraint("DistanceX", 3, 2, -1, 1, Q("0.875 mm")))
sketch1.addConstraint(Sketcher.Constraint("DistanceY", -1, 1, 8, 2, Q("0.875 mm")))
sketch1.addConstraint(Sketcher.Constraint("Radius", 3, Q("0.218185 mm")))
sketch1.addConstraint(Sketcher.Constraint("DistanceX", 3, 3, -1, 1, Q("0.8115 mm")))
sketch1.addConstraint(Sketcher.Constraint("DistanceY", -1, 1, 9, 3, Q("0.8115 mm")))
sketch1.addConstraint(Sketcher.Constraint("Distance", 2, Q("0.372712 mm")))
sketch1.addConstraint(Sketcher.Constraint("DistanceY", -1, 1, 0, 2, Q("1.152972 mm")))
sketch1.addConstraint(Sketcher.Constraint("DistanceX", 1, 2, -1, 1, Q("0.459559 mm")))
sketch1.addConstraint(Sketcher.Constraint("DistanceY", -1, 1, 2, 2, Q("1.40564 mm")))
sketch1.addConstraint(Sketcher.Constraint("DistanceX", 5, 2, -1, 1, Q("0.705121 mm")))
pad1 = doc.addObject("PartDesign::Pad", "Pad")
body.addObject(pad1)
pad1.Profile = sketch1
pad1.Length = 2.4

sketch2 = doc.addObject("Sketcher::SketchObject", "Sketch001")
body.addObject(sketch2)
sketch2.AttachmentSupport = (doc.XY_Plane, [""])
sketch2.MapMode = "FlatFace"
sketch2.addGeometry(Part.Circle(Vector(0, 0, 0), Vector(0, 0, 1), 0.9), False)
sketch2.addConstraint(Sketcher.Constraint("Coincident", 0, 3, -1, 1))
sketch2.addConstraint(Sketcher.Constraint("Diameter", 0, Q("1.8 mm")))
pad2 = doc.addObject("PartDesign::Pad", "Pad001")
body.addObject(pad2)
pad2.Profile = sketch2
pad2.Type = "TwoLengths"
pad2.Length = 4.7124
pad2.Length2 = 7

sketch3 = doc.addObject("Sketcher::SketchObject", "Sketch002")
body.addObject(sketch3)
sketch3.AttachmentSupport = (doc.XY_Plane, [""])
sketch3.MapMode = "FlatFace"
sketch3.AttachmentOffset = App.Placement(Vector(0, 0, -7), App.Rotation())
sketch3.addGeometry(Part.Circle(Vector(0, 0, 0), Vector(0, 0, 1), 0.5), False)
sketch3.addConstraint(Sketcher.Constraint("Coincident", 0, 3, -1, 1))
sketch3.addConstraint(Sketcher.Constraint("Diameter", 0, Q("1 mm")))
pad3 = doc.addObject("PartDesign::Pad", "Pad002")
body.addObject(pad3)
pad3.Profile = sketch3
pad3.Length = 9.4
pad3.Reversed = True
doc.recompute()

chamfer = doc.addObject("PartDesign::Chamfer", "Chamfer")
body.addObject(chamfer)
chamfer.Base = (pad3, edges_at(pad3, [(-0.9, 0, 4.712)]))
chamfer.Size = 0.9

doc.recompute()
